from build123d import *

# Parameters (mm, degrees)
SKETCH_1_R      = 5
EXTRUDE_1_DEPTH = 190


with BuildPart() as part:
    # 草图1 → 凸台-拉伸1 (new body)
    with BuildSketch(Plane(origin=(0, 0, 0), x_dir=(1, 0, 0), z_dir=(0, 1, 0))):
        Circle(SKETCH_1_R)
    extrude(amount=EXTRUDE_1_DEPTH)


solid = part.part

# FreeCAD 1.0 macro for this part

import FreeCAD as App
import Part
import Sketcher

V = App.Vector

doc = App.newDocument("Part")
body = doc.addObject("PartDesign::Body", "Body")

sketch1 = body.newObject("Sketcher::SketchObject", "Sketch")
sketch1.AttachmentSupport = (doc.getObject("XZ_Plane"), [""])
sketch1.MapMode = "FlatFace"
sketch1.addGeometry(Part.Circle(V(0, 0, 0), V(0, 0, 1), 5), False)
sketch1.addConstraint([
    Sketcher.Constraint("Coincident", 0, 3, -1, 1),
    Sketcher.Constraint("Diameter", 0, 10.0),
])
pad1 = body.newObject("PartDesign::Pad", "Pad")
pad1.Profile = sketch1
pad1.Length = 190
pad1.Reversed = True

doc.recompute()
